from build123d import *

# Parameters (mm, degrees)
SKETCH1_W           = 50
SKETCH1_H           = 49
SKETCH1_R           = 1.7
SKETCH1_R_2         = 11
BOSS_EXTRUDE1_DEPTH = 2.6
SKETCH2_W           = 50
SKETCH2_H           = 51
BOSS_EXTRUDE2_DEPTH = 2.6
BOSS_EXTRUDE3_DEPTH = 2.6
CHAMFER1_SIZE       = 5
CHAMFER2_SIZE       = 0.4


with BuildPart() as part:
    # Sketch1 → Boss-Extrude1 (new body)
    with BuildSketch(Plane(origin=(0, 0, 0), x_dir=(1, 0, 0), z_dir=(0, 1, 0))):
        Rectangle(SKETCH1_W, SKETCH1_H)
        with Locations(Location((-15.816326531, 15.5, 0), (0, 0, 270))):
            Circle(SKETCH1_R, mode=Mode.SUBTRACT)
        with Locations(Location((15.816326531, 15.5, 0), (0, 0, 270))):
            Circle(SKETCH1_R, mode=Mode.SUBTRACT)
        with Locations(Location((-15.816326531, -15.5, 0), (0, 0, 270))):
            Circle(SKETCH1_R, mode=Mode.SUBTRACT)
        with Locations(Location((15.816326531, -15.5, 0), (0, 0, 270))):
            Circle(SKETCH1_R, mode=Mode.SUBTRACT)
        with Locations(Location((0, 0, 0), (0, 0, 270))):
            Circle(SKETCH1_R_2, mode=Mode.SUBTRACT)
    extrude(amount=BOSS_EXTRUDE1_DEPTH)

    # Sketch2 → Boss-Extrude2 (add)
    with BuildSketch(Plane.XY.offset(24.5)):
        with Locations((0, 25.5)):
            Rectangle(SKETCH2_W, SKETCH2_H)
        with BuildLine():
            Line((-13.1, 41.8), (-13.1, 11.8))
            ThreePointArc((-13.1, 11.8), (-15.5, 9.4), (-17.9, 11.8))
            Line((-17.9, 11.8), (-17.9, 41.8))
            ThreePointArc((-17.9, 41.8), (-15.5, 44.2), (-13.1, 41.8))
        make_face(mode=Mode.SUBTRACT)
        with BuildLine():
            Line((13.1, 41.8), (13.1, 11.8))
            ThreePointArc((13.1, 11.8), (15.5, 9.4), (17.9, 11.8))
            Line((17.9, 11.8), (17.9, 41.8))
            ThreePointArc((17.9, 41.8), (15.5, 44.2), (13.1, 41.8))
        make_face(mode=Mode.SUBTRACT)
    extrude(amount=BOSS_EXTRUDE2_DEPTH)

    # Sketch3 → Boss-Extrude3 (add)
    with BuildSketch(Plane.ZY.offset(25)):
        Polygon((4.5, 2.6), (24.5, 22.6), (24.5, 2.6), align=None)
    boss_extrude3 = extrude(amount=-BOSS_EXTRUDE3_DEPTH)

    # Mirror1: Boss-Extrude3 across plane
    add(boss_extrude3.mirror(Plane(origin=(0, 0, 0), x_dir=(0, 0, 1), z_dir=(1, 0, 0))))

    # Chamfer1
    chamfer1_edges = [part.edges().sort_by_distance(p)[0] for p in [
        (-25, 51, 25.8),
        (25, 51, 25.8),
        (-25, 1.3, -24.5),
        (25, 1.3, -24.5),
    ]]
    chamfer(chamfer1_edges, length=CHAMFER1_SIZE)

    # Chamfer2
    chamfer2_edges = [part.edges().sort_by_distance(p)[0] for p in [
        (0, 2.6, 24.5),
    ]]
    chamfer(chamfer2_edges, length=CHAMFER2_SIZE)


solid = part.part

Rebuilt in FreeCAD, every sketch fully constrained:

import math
import FreeCAD as App
import Part
import Sketcher
Q = App.Units.Quantity


def edges_at(feature, points):
    """Names of the edges that pass closest to the given points."""
    edges = feature.Shape.Edges
    near = lambda p: min(range(len(edges)), key=lambda i: edges[i].distToShape(Part.Vertex(*p))[0])
    return sorted({f"Edge{near(p) + 1}" for p in points})


def add_polygon(sketch, points):
    """Adds a closed chain of lines whose ends are joined by coincident constraints."""
    first, n = sketch.GeometryCount, len(points)
    for a, b in zip(points, points[1:] + points[:1]):
        sketch.addGeometry(Part.LineSegment(App.Vector(*a, 0), App.Vector(*b, 0)), False)
    for i in range(n):
        sketch.addConstraint(Sketcher.Constraint("Coincident", first + i, 2, first + (i + 1) % n, 1))

doc = App.newDocument("Part")
body = doc.addObject("PartDesign::Body", "Body")

# Sketch on XZ plane
sketch1 = doc.addObject("Sketcher::SketchObject", "Sketch")
body.addObject(sketch1)
sketch1.AttachmentSupport = (doc.XZ_Plane, [""])
sketch1.MapMode = "FlatFace"
add_polygon(sketch1, [(-25, -24.5), (-25, 24.5), (25, 24.5), (25, -24.5)])  # lines 0-3
sketch1.addGeometry(Part.Circle(App.Vector(-15.8, 15.5, 0), App.Vector(0, 0, 1), 1.7), False)  # 4
sketch1.addGeometry(Part.Circle(App.Vector(15.8, 15.5, 0), App.Vector(0, 0, 1), 1.7), False)  # 5
sketch1.addGeometry(Part.Circle(App.Vector(-15.8, -15.5, 0), App.Vector(0, 0, 1), 1.7), False)  # 6
sketch1.addGeometry(Part.Circle(App.Vector(0, 0, 0), App.Vector(0, 0, 1), 11), False)  # 7
sketch1.addGeometry(Part.Circle(App.Vector(15.8, -15.5, 0), App.Vector(0, 0, 1), 1.7), False)  # 8
sketch1.addConstraint([
    Sketcher.Constraint("Vertical", 0),
    Sketcher.Constraint("Horizontal", 1),
    Sketcher.Constraint("Vertical", 2),
    Sketcher.Constraint("Horizontal", 3),
    Sketcher.Constraint("Coincident", 7, 3, -1, 1),
    Sketcher.Constraint("Equal", 4, 5),
    Sketcher.Constraint("Equal", 5, 6),
    Sketcher.Constraint("Equal", 6, 8),
    Sketcher.Constraint("Symmetric", 5, 3, 6, 3, -1, 1),
    Sketcher.Constraint("Symmetric", 4, 3, 8, 3, -1, 1),
    Sketcher.Constraint("Symmetric", 0, 2, 2, 2, -1, 1),
    Sketcher.Constraint("Symmetric", 4, 3, 5, 3, -2),
    Sketcher.Constraint("Diameter", 7, Q("22 mm")),
    Sketcher.Constraint("Diameter", 4, Q("3.4 mm")),
    Sketcher.Constraint("DistanceX", 1, 1, 1, 2, Q("50 mm")),
    Sketcher.Constraint("DistanceY", 0, 1, 0, 2, Q("49 mm")),
    Sketcher.Constraint("DistanceY", 6, 3, 4, 3, Q("31 mm")),
    Sketcher.Constraint("DistanceX", 4, 3, -1, 1, Q("15.816327 mm")),
])
pad1 = doc.addObject("PartDesign::Pad", "Pad")
body.addObject(pad1)
pad1.Profile = sketch1
pad1.Length = 2.6
pad1.Reversed = True

# Sketch on XY plane
sketch2 = doc.addObject("Sketcher::SketchObject", "Sketch001")
body.addObject(sketch2)
sketch2.AttachmentSupport = (doc.XY_Plane, [""])
sketch2.MapMode = "FlatFace"
sketch2.AttachmentOffset = App.Placement(App.Vector(0, 0, 24.5), App.Rotation())
add_polygon(sketch2, [(-25, 51), (-25, 0), (25, 0), (25, 51)])  # lines 0-3
sketch2.addGeometry(Part.ArcOfCircle(Part.Circle(App.Vector(-15.5, 41.8, 0), App.Vector(0, 0, 1), 2.4), math.radians(0), math.radians(180)), False)  # 4
sketch2.addGeometry(Part.LineSegment(App.Vector(-13.1, 41.8, 0), App.Vector(-13.1, 11.8, 0)), False)  # 5
sketch2.addGeometry(Part.ArcOfCircle(Part.Circle(App.Vector(-15.5, 11.8, 0), App.Vector(0, 0, 1), 2.4), math.radians(180), math.radians(360)), False)  # 6
sketch2.addGeometry(Part.LineSegment(App.Vector(-17.9, 11.8, 0), App.Vector(-17.9, 41.8, 0)), False)  # 7
sketch2.addGeometry(Part.LineSegment(App.Vector(13.1, 11.8, 0), App.Vector(13.1, 41.8, 0)), False)  # 8
sketch2.addGeometry(Part.ArcOfCircle(Part.Circle(App.Vector(15.5, 41.8, 0), App.Vector(0, 0, 1), 2.4), math.radians(0), math.radians(180)), False)  # 9
sketch2.addGeometry(Part.LineSegment(App.Vector(17.9, 41.8, 0), App.Vector(17.9, 11.8, 0)), False)  # 10
sketch2.addGeometry(Part.ArcOfCircle(Part.Circle(App.Vector(15.5, 11.8, 0), App.Vector(0, 0, 1), 2.4), math.radians(180), math.radians(360)), False)  # 11
sketch2.addConstraint([
    Sketcher.Constraint("Tangent", 4, 1, 5, 1),
    Sketcher.Constraint("Tangent", 5, 2, 6, 2),
    Sketcher.Constraint("Tangent", 6, 1, 7, 1),
    Sketcher.Constraint("Tangent", 7, 2, 4, 2),
    Sketcher.Constraint("Tangent", 8, 2, 9, 2),
    Sketcher.Constraint("Tangent", 9, 1, 10, 1),
    Sketcher.Constraint("Tangent", 10, 2, 11, 2),
    Sketcher.Constraint("Tangent", 11, 1, 8, 1),
    Sketcher.Constraint("Vertical", 0),
    Sketcher.Constraint("Horizontal", 1),
    Sketcher.Constraint("Vertical", 2),
    Sketcher.Constraint("Horizontal", 3),
    Sketcher.Constraint("Vertical", 5),
    Sketcher.Constraint("Vertical", 7),
    Sketcher.Constraint("Vertical", 8),
    Sketcher.Constraint("Vertical", 10),
    Sketcher.Constraint("Equal", 6, 9),
    Sketcher.Constraint("Symmetric", 0, 2, 1, 2, -1, 1),
    Sketcher.Constraint("Symmetric", 4, 3, 9, 3, -2),
    Sketcher.Constraint("Horizontal", 6, 3, 11, 3),
    Sketcher.Constraint("Radius", 4, Q("2.4 mm")),
    Sketcher.Constraint("DistanceX", 1, 1, 1, 2, Q("50 mm")),
    Sketcher.Constraint("DistanceY", 0, 2, 0, 1, Q("51 mm")),
    Sketcher.Constraint("DistanceY", 5, 2, 5, 1, Q("30 mm")),
    Sketcher.Constraint("DistanceX", 4, 3, 9, 3, Q("31 mm")),
    Sketcher.Constraint("DistanceY", -1, 1, 4, 3, Q("41.8 mm")),
])
pad2 = doc.addObject("PartDesign::Pad", "Pad001")
body.addObject(pad2)
pad2.Profile = sketch2
pad2.Length = 2.6

# Sketch on YZ plane
sketch3 = doc.addObject("Sketcher::SketchObject", "Sketch002")
body.addObject(sketch3)
sketch3.AttachmentSupport = (doc.YZ_Plane, [""])
sketch3.MapMode = "FlatFace"
sketch3.AttachmentOffset = App.Placement(App.Vector(0, 0, -25), App.Rotation())
add_polygon(sketch3, [(23, 24), (3, 4), (3, 24)])  # lines 0-2
sketch3.addConstraint([
    Sketcher.Constraint("Vertical", 1),
    Sketcher.Constraint("Horizontal", 2),
    Sketcher.Constraint("Equal", 2, 1),
    Sketcher.Constraint("DistanceX", 2, 1, 2, 2, Q("20 mm")),
    Sketcher.Constraint("DistanceX", -1, 1, 0, 2, Q("2.6 mm")),
    Sketcher.Constraint("DistanceY", -1, 1, 0, 2, Q("4.5 mm")),
])
pad3 = doc.addObject("PartDesign::Pad", "Pad002")
body.addObject(pad3)
pad3.Profile = sketch3
pad3.Length = 2.6
doc.recompute()

mirrored = doc.addObject("PartDesign::Mirrored", "Mirrored")
body.addObject(mirrored)
mirrored.Originals = [pad3]
mirrored.MirrorPlane = (doc.YZ_Plane, [""])
body.Tip = mirrored
doc.recompute()

chamfer = doc.addObject("PartDesign::Chamfer", "Chamfer")
body.addObject(chamfer)
chamfer.Base = (mirrored, edges_at(mirrored, [
    (-25, 51, 25.8),
    (25, 51, 25.8),
    (-25, 1.3, -24.5),
    (25, 1.3, -24.5),
]))
chamfer.Size = 5
doc.recompute()

chamfer2 = doc.addObject("PartDesign::Chamfer", "Chamfer001")
body.addObject(chamfer2)
chamfer2.Base = (chamfer, edges_at(chamfer, [(0, 2.6, 24.5)]))
chamfer2.Size = 0.4

doc.recompute()
